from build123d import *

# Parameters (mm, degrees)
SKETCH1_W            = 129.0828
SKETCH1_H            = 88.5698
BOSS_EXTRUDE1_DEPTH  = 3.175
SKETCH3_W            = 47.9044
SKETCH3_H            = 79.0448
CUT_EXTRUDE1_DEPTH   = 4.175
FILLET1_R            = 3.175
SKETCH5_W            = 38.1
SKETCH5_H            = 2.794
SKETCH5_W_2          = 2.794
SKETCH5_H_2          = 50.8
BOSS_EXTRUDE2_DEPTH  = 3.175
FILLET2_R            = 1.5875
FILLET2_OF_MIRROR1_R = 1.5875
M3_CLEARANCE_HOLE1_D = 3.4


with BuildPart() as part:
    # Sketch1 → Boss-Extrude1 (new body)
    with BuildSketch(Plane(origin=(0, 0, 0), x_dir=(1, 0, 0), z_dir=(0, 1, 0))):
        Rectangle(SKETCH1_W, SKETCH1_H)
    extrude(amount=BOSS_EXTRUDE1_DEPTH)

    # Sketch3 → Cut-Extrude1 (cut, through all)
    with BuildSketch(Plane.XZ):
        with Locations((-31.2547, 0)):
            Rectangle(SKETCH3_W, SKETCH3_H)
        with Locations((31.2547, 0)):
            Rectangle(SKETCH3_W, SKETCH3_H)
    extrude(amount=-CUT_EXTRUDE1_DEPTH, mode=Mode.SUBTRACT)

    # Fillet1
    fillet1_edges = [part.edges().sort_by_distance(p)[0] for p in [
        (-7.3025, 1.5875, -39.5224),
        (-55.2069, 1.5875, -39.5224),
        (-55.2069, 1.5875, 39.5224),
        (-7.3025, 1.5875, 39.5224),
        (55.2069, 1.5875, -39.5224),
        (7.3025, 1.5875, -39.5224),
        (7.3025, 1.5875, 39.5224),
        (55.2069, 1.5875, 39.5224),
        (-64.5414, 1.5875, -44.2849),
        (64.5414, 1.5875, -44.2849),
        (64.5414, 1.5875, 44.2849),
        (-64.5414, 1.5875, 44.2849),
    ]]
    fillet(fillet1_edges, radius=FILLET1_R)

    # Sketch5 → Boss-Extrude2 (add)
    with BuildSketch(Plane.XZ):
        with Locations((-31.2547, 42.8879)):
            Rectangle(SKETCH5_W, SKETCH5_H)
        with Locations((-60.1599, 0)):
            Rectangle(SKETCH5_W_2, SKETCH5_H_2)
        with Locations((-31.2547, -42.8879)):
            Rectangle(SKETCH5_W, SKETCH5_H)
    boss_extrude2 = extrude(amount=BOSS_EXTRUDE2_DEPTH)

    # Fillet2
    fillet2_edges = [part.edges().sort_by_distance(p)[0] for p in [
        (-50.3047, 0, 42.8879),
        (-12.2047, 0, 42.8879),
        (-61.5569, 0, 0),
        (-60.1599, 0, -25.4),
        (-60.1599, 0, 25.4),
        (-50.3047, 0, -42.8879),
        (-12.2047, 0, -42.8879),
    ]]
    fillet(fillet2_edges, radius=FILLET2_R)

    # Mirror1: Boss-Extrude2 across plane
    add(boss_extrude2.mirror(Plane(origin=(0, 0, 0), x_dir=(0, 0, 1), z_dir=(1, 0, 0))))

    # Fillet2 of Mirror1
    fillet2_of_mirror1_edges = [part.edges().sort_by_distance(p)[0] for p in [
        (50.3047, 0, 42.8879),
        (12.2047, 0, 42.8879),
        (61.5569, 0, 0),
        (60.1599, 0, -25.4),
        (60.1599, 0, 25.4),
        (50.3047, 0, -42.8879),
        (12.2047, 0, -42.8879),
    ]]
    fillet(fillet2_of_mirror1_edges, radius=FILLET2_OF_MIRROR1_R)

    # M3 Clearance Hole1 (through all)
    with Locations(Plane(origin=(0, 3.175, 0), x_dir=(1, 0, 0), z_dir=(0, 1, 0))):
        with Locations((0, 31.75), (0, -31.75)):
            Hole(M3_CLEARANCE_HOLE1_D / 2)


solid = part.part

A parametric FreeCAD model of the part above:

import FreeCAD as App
import Part
import Sketcher

V = App.Vector
Q = App.Units.Quantity


def edges_at(feature, points):
    """Names of the edges that pass closest to the given points."""
    edges = feature.Shape.Edges
    near = lambda p: min(range(len(edges)), key=lambda i: edges[i].distToShape(Part.Vertex(*p))[0])
    return sorted({f"Edge{near(p) + 1}" for p in points})


def add_polygon(sketch, points):
    """Adds a closed chain of lines whose ends are joined by coincident constraints."""
    first, n = sketch.GeometryCount, len(points)
    for a, b in zip(points, points[1:] + points[:1]):
        sketch.addGeometry(Part.LineSegment(App.Vector(*a, 0), App.Vector(*b, 0)), False)
    for i in range(n):
        sketch.addConstraint(Sketcher.Constraint("Coincident", first + i, 2, first + (i + 1) % n, 1))

doc = App.newDocument("Part")
body = doc.addObject("PartDesign::Body", "Body")

# Sketch on XZ plane
sketch1 = body.newObject("Sketcher::SketchObject", "Sketch")
sketch1.AttachmentSupport = (doc.getObject("XZ_Plane"), [""])
sketch1.MapMode = "FlatFace"
add_polygon(sketch1, [(-65, -44), (-65, 44), (65, 44), (65, -44)])  # lines 0-3
sketch1.addConstraint([
    Sketcher.Constraint("Vertical", 0),
    Sketcher.Constraint("Horizontal", 1),
    Sketcher.Constraint("Vertical", 2),
    Sketcher.Constraint("Horizontal", 3),
    Sketcher.Constraint("Symmetric", 0, 2, 2, 2, -1, 1),
    Sketcher.Constraint("DistanceX", 1, 1, 1, 2, Q("5.082 in")),
    Sketcher.Constraint("DistanceY", 0, 1, 0, 2, Q("3.487 in")),
])
pad1 = body.newObject("PartDesign::Pad", "Pad")
pad1.Profile = sketch1
pad1.Length = Q("0.125 in")
pad1.Reversed = True

# Sketch on XZ plane
sketch2 = body.newObject("Sketcher::SketchObject", "Sketch001")
sketch2.AttachmentSupport = (doc.getObject("XZ_Plane"), [""])
sketch2.MapMode = "FlatFace"
add_polygon(sketch2, [(-55, 40), (-55, -40), (-7, -40), (-7, 40)])  # lines 0-3
add_polygon(sketch2, [(7, 40), (7, -40), (55, -40), (55, 40)])  # lines 4-7
sketch2.addConstraint([
    Sketcher.Constraint("Vertical", 0),
    Sketcher.Constraint("Horizontal", 1),
    Sketcher.Constraint("Vertical", 2),
    Sketcher.Constraint("Horizontal", 3),
    Sketcher.Constraint("Vertical", 4),
    Sketcher.Constraint("Horizontal", 5),
    Sketcher.Constraint("Vertical", 6),
    Sketcher.Constraint("Horizontal", 7),
    Sketcher.Constraint("Symmetric", 2, 2, 4, 2, -1, 1),
    Sketcher.Constraint("Symmetric", 0, 2, 6, 2, -1, 1),
    Sketcher.Constraint("Horizontal", 1, 2, 4, 2),
    Sketcher.Constraint("DistanceX", 1, 1, 1, 2, Q("1.886 in")),
    Sketcher.Constraint("DistanceY", 0, 2, 0, 1, Q("3.112 in")),
    Sketcher.Constraint("DistanceX", 1, 2, 4, 2, Q("0.575 in")),
])
pocket1 = body.newObject("PartDesign::Pocket", "Pocket")
pocket1.Profile = sketch2
pocket1.Type = "ThroughAll"
doc.recompute()

fillet = body.newObject("PartDesign::Fillet", "Fillet")
fillet.Base = (pocket1, edges_at(pocket1, [
    (-7.303, 1.587, -39.522),
    (-55.207, 1.587, -39.522),
    (-55.207, 1.587, 39.522),
    (-7.303, 1.587, 39.522),
    (55.207, 1.587, -39.522),
    (7.303, 1.587, -39.522),
    (7.303, 1.587, 39.522),
    (55.207, 1.587, 39.522),
    (-64.541, 1.587, -44.285),
    (64.541, 1.587, -44.285),
    (64.541, 1.587, 44.285),
    (-64.541, 1.587, 44.285),
]))
fillet.Radius = Q("0.125 in")

# Sketch on XZ plane
sketch3 = body.newObject("Sketcher::SketchObject", "Sketch002")
sketch3.AttachmentSupport = (doc.getObject("XZ_Plane"), [""])
sketch3.MapMode = "FlatFace"
add_polygon(sketch3, [(-50.3, 44.3), (-50.3, 41.5), (-12.2, 41.5), (-12.2, 44.3)])  # lines 0-3
add_polygon(sketch3, [(-61.6, 25.4), (-61.6, -25.4), (-58.8, -25.4), (-58.8, 25.4)])  # lines 4-7
add_polygon(sketch3, [(-50.3, -41.5), (-50.3, -44.3), (-12.2, -44.3), (-12.2, -41.5)])  # lines 8-11
sketch3.addConstraint([
    Sketcher.Constraint("Vertical", 0),
    Sketcher.Constraint("Horizontal", 1),
    Sketcher.Constraint("Vertical", 2),
    Sketcher.Constraint("Horizontal", 3),
    Sketcher.Constraint("Vertical", 4),
    Sketcher.Constraint("Horizontal", 5),
    Sketcher.Constraint("Vertical", 6),
    Sketcher.Constraint("Horizontal", 7),
    Sketcher.Constraint("Vertical", 8),
    Sketcher.Constraint("Horizontal", 9),
    Sketcher.Constraint("Vertical", 10),
    Sketcher.Constraint("Horizontal", 11),
    Sketcher.Constraint("Symmetric", 3, 2, 8, 2, -1),
    Sketcher.Constraint("Symmetric", 1, 2, 10, 2, -1),
    Sketcher.Constraint("Equal", 7, 0),
    Sketcher.Constraint("DistanceY", 4, 2, 4, 1, Q("2 in")),
    Sketcher.Constraint("DistanceX", 1, 1, 1, 2, Q("1.5 in")),
    Sketcher.Constraint("DistanceY", 4, 2, -1, 1, Q("1 in")),
    Sketcher.Constraint("DistanceX", 5, 1, 5, 2, Q("0.11 in")),
    Sketcher.Constraint("DistanceX", 4, 2, 0, 2, Q("0.443 in")),
    Sketcher.Constraint("DistanceY", 8, 2, 0, 2, Q("3.377 in")),
    Sketcher.Constraint("DistanceX", 0, 2, -1, 1, Q("1.9805 in")),
])
pad2 = body.newObject("PartDesign::Pad", "Pad001")
pad2.Profile = sketch3
pad2.Length = Q("0.125 in")
doc.recompute()

fillet2 = body.newObject("PartDesign::Fillet", "Fillet001")
fillet2.Base = (pad2, edges_at(pad2, [
    (-50.305, 0, 42.888),
    (-12.205, 0, 42.888),
    (-61.557, 0, 0),
    (-60.16, 0, -25.4),
    (-60.16, 0, 25.4),
    (-50.305, 0, -42.888),
    (-12.205, 0, -42.888),
]))
fillet2.Radius = Q("0.0625 in")
doc.recompute()

mirrored = body.newObject("PartDesign::Mirrored", "Mirrored")
mirrored.Originals = [pad2]
mirrored.MirrorPlane = (doc.getObject("YZ_Plane"), [""])
body.Tip = mirrored
doc.recompute()

fillet3 = body.newObject("PartDesign::Fillet", "Fillet002")
fillet3.Base = (mirrored, edges_at(mirrored, [
    (50.305, 0, 42.888),
    (12.205, 0, 42.888),
    (61.557, 0, 0),
    (60.16, 0, -25.4),
    (60.16, 0, 25.4),
    (50.305, 0, -42.888),
    (12.205, 0, -42.888),
]))
fillet3.Radius = Q("0.0625 in")

# Sketch on XZ plane
sketch4 = body.newObject("Sketcher::SketchObject", "Sketch003")
sketch4.AttachmentSupport = (doc.getObject("XZ_Plane"), [""])
sketch4.MapMode = "FlatFace"
sketch4.AttachmentOffset = App.Placement(V(0, 0, -0.125 * 25.4), App.Rotation())
sketch4.addGeometry([
    Part.Circle(V(0, -31.8, 0), V(0, 0, 1), 1.7),
    Part.Circle(V(0, 31.8, 0), V(0, 0, 1), 1.7),
], False)
sketch4.addConstraint([
    Sketcher.Constraint("Equal", 0, 1),
    Sketcher.Constraint("Symmetric", 0, 3, 1, 3, -1, 1),
    Sketcher.Constraint("PointOnObject", 0, 3, -2),
    Sketcher.Constraint("DistanceY", 0, 3, 1, 3, Q("2.5 in")),
    Sketcher.Constraint("Diameter", 0, 3.4),
])
doc.recompute()
hole = body.newObject("PartDesign::Hole", "Hole")
hole.Profile = sketch4
hole.ThreadType = "None"
hole.Diameter = 3.4
hole.DepthType = "ThroughAll"
hole.Reversed = True

doc.recompute()
